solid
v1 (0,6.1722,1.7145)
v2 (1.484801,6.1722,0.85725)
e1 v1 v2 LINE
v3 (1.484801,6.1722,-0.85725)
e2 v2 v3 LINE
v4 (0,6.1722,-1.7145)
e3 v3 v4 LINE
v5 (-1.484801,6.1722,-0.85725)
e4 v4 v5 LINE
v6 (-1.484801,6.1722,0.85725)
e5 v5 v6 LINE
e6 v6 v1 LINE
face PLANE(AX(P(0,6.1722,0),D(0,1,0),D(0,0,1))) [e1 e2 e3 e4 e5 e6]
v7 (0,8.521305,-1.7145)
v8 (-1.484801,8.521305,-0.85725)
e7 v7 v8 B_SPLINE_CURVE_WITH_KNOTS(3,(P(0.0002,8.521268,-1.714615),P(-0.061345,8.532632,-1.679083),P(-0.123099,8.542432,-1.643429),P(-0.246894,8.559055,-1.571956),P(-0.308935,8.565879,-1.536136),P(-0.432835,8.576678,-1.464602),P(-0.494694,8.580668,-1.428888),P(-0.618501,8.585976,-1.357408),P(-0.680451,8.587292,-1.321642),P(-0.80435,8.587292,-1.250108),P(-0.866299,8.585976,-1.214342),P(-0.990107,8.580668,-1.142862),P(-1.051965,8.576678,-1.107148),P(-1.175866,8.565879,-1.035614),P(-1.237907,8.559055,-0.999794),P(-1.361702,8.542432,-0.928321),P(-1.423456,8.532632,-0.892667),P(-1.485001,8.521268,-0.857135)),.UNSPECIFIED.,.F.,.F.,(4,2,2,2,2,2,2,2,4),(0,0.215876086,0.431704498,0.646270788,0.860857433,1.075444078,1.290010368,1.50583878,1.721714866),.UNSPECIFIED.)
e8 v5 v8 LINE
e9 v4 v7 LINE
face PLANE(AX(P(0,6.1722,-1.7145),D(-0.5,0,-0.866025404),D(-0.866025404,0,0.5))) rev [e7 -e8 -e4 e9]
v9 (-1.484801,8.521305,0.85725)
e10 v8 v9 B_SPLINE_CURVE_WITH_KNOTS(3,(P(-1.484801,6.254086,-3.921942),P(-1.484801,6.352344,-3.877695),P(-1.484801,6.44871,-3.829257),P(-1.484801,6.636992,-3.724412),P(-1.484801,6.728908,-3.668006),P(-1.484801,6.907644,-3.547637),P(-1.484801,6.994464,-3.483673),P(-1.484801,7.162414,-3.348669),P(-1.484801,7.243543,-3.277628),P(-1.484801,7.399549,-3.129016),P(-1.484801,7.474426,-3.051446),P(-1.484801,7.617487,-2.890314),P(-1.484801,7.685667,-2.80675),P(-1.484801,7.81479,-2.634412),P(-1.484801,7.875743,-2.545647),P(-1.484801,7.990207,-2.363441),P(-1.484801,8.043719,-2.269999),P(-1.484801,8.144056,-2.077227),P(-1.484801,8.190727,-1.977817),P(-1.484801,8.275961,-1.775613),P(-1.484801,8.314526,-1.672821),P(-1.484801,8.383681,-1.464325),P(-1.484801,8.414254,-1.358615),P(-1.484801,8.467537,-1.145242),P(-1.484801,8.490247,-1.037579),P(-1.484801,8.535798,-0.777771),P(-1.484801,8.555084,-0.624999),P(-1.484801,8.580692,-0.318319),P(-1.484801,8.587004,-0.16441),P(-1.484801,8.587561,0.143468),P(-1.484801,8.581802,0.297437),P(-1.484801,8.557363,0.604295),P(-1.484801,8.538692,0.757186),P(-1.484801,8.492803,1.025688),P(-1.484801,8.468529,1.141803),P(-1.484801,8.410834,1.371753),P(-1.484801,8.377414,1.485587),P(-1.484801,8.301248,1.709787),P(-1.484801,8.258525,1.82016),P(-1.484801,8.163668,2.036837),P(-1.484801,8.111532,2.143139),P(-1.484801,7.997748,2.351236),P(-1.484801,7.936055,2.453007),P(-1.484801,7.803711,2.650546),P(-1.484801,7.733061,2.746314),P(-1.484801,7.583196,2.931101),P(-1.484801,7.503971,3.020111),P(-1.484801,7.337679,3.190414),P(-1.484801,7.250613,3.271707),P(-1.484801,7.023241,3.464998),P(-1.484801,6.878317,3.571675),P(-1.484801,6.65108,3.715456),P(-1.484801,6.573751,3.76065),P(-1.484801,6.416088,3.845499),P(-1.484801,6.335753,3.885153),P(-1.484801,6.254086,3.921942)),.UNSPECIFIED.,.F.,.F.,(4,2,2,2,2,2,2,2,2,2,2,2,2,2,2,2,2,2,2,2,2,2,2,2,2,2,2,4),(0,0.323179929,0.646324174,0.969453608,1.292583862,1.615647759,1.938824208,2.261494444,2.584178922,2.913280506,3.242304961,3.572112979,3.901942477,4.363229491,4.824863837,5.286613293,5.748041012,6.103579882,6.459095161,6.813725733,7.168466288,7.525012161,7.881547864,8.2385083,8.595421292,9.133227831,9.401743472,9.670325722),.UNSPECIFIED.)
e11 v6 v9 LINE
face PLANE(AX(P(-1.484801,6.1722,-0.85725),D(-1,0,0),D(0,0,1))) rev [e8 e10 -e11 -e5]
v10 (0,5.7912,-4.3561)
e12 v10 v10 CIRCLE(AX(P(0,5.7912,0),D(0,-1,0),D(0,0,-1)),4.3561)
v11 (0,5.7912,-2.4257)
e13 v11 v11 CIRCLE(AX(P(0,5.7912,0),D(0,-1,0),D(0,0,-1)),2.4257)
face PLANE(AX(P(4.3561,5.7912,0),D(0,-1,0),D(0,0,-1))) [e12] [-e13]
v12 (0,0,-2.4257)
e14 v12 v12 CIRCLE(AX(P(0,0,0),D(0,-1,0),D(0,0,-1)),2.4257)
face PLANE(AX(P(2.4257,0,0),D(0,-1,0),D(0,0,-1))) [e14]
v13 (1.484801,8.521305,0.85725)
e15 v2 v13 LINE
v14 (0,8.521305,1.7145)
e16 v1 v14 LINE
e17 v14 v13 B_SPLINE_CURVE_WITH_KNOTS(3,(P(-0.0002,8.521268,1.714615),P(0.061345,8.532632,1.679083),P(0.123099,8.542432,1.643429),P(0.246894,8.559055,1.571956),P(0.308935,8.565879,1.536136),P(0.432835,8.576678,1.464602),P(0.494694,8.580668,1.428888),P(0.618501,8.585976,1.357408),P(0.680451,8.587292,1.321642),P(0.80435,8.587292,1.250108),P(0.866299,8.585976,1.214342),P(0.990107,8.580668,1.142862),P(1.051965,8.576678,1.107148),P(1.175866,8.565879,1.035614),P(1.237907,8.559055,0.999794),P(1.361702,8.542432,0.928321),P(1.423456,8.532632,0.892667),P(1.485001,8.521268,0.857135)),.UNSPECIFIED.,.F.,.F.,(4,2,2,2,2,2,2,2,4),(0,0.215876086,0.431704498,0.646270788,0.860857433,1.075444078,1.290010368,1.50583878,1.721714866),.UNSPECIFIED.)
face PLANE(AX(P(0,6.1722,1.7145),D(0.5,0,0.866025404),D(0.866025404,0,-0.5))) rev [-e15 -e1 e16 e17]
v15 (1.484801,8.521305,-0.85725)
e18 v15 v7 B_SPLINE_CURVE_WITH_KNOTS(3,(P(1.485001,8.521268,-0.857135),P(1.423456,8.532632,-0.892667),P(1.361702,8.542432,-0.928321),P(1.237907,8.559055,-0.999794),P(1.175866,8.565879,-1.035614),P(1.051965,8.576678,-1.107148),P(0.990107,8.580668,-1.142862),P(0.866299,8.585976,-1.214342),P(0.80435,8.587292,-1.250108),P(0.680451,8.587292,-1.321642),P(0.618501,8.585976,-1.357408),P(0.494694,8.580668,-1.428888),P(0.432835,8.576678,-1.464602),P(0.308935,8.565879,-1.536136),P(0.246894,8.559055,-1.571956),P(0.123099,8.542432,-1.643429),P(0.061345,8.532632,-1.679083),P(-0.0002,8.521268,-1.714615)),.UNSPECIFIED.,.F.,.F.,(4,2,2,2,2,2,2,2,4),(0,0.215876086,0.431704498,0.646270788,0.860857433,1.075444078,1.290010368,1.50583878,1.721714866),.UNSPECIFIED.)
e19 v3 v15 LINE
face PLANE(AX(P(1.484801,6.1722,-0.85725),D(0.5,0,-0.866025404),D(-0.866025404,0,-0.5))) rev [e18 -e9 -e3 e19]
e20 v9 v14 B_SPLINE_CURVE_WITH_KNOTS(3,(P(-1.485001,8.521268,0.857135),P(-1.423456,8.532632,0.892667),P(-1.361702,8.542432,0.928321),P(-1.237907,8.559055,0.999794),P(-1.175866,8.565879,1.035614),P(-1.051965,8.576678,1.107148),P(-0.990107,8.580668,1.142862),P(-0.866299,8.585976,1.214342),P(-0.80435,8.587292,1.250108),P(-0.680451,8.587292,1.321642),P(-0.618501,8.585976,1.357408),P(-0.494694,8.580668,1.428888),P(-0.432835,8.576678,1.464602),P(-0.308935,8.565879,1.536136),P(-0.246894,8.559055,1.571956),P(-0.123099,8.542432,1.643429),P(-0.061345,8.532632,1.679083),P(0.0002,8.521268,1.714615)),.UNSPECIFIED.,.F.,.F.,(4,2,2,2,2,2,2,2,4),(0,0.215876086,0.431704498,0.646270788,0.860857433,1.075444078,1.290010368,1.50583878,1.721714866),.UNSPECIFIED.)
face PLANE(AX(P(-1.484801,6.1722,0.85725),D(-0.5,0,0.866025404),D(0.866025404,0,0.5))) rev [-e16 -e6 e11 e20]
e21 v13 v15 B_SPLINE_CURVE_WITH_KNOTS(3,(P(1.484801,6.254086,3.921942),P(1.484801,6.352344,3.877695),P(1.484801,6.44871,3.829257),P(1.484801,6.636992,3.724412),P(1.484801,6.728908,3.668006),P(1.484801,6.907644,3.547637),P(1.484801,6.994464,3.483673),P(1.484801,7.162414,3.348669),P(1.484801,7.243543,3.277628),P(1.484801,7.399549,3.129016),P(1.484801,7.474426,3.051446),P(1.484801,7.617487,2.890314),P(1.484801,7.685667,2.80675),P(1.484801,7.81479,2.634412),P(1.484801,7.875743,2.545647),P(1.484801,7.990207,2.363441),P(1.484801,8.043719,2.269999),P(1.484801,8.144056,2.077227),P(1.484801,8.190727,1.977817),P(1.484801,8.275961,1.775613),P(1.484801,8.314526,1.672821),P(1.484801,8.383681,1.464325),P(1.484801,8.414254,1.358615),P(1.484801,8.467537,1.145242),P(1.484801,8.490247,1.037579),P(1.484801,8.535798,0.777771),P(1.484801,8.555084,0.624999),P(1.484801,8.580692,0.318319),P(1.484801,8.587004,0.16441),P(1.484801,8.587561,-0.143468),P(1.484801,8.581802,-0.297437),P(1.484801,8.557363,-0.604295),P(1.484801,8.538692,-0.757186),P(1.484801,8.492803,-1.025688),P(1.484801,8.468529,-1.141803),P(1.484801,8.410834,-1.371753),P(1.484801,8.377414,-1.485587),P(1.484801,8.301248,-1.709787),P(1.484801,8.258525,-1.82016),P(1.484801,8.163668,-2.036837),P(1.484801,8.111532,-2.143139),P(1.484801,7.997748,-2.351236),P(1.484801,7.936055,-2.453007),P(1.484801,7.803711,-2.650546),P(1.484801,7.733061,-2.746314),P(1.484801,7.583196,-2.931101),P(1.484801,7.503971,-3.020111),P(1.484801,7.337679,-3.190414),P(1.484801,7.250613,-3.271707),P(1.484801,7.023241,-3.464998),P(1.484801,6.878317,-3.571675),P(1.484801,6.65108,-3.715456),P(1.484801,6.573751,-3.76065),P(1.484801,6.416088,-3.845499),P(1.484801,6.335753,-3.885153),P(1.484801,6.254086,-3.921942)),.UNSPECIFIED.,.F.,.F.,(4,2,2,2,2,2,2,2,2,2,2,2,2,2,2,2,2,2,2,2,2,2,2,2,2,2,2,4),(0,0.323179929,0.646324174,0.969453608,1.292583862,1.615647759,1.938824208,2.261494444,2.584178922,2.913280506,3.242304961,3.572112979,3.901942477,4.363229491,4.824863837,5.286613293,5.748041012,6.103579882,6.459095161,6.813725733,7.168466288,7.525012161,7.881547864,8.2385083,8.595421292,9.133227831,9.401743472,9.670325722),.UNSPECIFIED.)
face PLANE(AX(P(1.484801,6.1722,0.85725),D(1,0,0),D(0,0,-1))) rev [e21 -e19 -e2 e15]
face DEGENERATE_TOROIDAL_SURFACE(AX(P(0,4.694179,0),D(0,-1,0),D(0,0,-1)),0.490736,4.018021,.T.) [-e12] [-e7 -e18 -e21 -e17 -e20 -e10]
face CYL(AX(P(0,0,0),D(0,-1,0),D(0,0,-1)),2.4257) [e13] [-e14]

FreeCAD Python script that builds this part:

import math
import FreeCAD as App
import Part
import Sketcher

V = App.Vector
Q = App.Units.Quantity


def add_polygon(sketch, points):
    """Adds a closed chain of lines whose ends are joined by coincident constraints."""
    first, n = sketch.GeometryCount, len(points)
    for a, b in zip(points, points[1:] + points[:1]):
        sketch.addGeometry(Part.LineSegment(App.Vector(*a, 0), App.Vector(*b, 0)), False)
    for i in range(n):
        sketch.addConstraint(Sketcher.Constraint("Coincident", first + i, 2, first + (i + 1) % n, 1))

doc = App.newDocument("Part")
params = doc.addObject("Spreadsheet::Sheet", "Params")
for row, (alias, value) in enumerate([
    ("sketch1_width", "0.076 in"),
    ("sketch1_height", "0.343 in"),
    ("sketch1_height2", "0.228 in"),
    ("revolution_angle", "360 deg"),
    ("pocket1_length", "0.1 in"),
], start=1):
    params.set(f"A{row}", alias)
    params.set(f"B{row}", "=" + value)
    params.setAlias(f"B{row}", alias)

body = doc.addObject("PartDesign::Body", "Body")

# Sketch on XY plane
sketch1 = body.newObject("Sketcher::SketchObject", "Sketch")
sketch1.AttachmentSupport = (doc.getObject("XY_Plane"), [""])
sketch1.MapMode = "FlatFace"
sketch1.addGeometry([
    Part.LineSegment(V(0, 8.71, 0), V(0, 0, 0)),  # 0
    Part.LineSegment(V(0, 0, 0), V(2.43, 0, 0)),  # 1
    Part.LineSegment(V(2.43, 0, 0), V(2.43, 5.79, 0)),  # 2
    Part.LineSegment(V(2.43, 5.79, 0), V(4.36, 5.79, 0)),  # 3
    Part.ArcOfCircle(Part.Circle(V(0.49, 4.69, 0), V(0, 0, 1), 4.02), math.radians(16), math.radians(90)),  # 4
    Part.LineSegment(V(0.49, 8.71, 0), V(0, 8.71, 0)),  # 5
], False)
sketch1.addConstraint([
    Sketcher.Constraint("Coincident", 0, 2, 1, 1),
    Sketcher.Constraint("Coincident", 1, 2, 2, 1),
    Sketcher.Constraint("Coincident", 2, 2, 3, 1),
    Sketcher.Constraint("Coincident", 3, 2, 4, 1),
    Sketcher.Constraint("Tangent", 4, 2, 5, 1),
    Sketcher.Constraint("Coincident", 5, 2, 0, 1),
    Sketcher.Constraint("Vertical", 0),
    Sketcher.Constraint("Horizontal", 1),
    Sketcher.Constraint("Vertical", 2),
    Sketcher.Constraint("Horizontal", 3),
    Sketcher.Constraint("Horizontal", 5),
    Sketcher.Constraint("Coincident", 0, 2, -1, 1),
    Sketcher.Constraint("DistanceX", 3, 1, 3, 2, Q("0.076 in")),
    Sketcher.Constraint("DistanceY", 0, 2, 0, 1, Q("0.343 in")),
    Sketcher.Constraint("DistanceY", 2, 1, 2, 2, Q("0.228 in")),
    Sketcher.Constraint("DistanceX", 1, 1, 1, 2, Q("0.0955 in")),
    Sketcher.Constraint("Radius", 4, 4.018021),
])
sketch1.setExpression("Constraints[12]", "Params.sketch1_width")
sketch1.setExpression("Constraints[13]", "Params.sketch1_height")
sketch1.setExpression("Constraints[14]", "Params.sketch1_height2")
revolution = body.newObject("PartDesign::Revolution", "Revolution")
revolution.Profile = sketch1
revolution.ReferenceAxis = (sketch1, ["V_Axis"])
revolution.setExpression("Angle", "Params.revolution_angle")

# Sketch on XZ plane
sketch2 = body.newObject("Sketcher::SketchObject", "Sketch001")
sketch2.AttachmentSupport = (doc.getObject("XZ_Plane"), [""])
sketch2.MapMode = "FlatFace"
sketch2.AttachmentOffset = App.Placement(V(0, 0, -0.343 * 25.4), App.Rotation())
add_polygon(sketch2, [(0, 1.7), (1.5, 0.9), (1.5, -0.9), (0, -1.7), (-1.5, -0.9), (-1.5, 0.9)])  # lines 0-5
sketch2.addConstraint([
    Sketcher.Constraint("Vertical", 1),
    Sketcher.Constraint("Vertical", 4),
    Sketcher.Constraint("Symmetric", 0, 2, 3, 2, -1, 1),
    Sketcher.Constraint("Symmetric", 2, 2, 5, 2, -1, 1),
    Sketcher.Constraint("PointOnObject", 2, 2, -2),
    Sketcher.Constraint("Parallel", 2, 5),
    Sketcher.Constraint("Horizontal", 1, 2, 3, 2),
    Sketcher.Constraint("Angle", 0, Q("-30 deg")),
    Sketcher.Constraint("DistanceY", 1, 2, 1, 1, Q("0.0675 in")),
    Sketcher.Constraint("DistanceY", 2, 2, 5, 2, Q("0.135 in")),
])
pocket1 = body.newObject("PartDesign::Pocket", "Pocket")
pocket1.Profile = sketch2
pocket1.setExpression("Length", "Params.pocket1_length")
pocket1.Reversed = True

doc.recompute()
